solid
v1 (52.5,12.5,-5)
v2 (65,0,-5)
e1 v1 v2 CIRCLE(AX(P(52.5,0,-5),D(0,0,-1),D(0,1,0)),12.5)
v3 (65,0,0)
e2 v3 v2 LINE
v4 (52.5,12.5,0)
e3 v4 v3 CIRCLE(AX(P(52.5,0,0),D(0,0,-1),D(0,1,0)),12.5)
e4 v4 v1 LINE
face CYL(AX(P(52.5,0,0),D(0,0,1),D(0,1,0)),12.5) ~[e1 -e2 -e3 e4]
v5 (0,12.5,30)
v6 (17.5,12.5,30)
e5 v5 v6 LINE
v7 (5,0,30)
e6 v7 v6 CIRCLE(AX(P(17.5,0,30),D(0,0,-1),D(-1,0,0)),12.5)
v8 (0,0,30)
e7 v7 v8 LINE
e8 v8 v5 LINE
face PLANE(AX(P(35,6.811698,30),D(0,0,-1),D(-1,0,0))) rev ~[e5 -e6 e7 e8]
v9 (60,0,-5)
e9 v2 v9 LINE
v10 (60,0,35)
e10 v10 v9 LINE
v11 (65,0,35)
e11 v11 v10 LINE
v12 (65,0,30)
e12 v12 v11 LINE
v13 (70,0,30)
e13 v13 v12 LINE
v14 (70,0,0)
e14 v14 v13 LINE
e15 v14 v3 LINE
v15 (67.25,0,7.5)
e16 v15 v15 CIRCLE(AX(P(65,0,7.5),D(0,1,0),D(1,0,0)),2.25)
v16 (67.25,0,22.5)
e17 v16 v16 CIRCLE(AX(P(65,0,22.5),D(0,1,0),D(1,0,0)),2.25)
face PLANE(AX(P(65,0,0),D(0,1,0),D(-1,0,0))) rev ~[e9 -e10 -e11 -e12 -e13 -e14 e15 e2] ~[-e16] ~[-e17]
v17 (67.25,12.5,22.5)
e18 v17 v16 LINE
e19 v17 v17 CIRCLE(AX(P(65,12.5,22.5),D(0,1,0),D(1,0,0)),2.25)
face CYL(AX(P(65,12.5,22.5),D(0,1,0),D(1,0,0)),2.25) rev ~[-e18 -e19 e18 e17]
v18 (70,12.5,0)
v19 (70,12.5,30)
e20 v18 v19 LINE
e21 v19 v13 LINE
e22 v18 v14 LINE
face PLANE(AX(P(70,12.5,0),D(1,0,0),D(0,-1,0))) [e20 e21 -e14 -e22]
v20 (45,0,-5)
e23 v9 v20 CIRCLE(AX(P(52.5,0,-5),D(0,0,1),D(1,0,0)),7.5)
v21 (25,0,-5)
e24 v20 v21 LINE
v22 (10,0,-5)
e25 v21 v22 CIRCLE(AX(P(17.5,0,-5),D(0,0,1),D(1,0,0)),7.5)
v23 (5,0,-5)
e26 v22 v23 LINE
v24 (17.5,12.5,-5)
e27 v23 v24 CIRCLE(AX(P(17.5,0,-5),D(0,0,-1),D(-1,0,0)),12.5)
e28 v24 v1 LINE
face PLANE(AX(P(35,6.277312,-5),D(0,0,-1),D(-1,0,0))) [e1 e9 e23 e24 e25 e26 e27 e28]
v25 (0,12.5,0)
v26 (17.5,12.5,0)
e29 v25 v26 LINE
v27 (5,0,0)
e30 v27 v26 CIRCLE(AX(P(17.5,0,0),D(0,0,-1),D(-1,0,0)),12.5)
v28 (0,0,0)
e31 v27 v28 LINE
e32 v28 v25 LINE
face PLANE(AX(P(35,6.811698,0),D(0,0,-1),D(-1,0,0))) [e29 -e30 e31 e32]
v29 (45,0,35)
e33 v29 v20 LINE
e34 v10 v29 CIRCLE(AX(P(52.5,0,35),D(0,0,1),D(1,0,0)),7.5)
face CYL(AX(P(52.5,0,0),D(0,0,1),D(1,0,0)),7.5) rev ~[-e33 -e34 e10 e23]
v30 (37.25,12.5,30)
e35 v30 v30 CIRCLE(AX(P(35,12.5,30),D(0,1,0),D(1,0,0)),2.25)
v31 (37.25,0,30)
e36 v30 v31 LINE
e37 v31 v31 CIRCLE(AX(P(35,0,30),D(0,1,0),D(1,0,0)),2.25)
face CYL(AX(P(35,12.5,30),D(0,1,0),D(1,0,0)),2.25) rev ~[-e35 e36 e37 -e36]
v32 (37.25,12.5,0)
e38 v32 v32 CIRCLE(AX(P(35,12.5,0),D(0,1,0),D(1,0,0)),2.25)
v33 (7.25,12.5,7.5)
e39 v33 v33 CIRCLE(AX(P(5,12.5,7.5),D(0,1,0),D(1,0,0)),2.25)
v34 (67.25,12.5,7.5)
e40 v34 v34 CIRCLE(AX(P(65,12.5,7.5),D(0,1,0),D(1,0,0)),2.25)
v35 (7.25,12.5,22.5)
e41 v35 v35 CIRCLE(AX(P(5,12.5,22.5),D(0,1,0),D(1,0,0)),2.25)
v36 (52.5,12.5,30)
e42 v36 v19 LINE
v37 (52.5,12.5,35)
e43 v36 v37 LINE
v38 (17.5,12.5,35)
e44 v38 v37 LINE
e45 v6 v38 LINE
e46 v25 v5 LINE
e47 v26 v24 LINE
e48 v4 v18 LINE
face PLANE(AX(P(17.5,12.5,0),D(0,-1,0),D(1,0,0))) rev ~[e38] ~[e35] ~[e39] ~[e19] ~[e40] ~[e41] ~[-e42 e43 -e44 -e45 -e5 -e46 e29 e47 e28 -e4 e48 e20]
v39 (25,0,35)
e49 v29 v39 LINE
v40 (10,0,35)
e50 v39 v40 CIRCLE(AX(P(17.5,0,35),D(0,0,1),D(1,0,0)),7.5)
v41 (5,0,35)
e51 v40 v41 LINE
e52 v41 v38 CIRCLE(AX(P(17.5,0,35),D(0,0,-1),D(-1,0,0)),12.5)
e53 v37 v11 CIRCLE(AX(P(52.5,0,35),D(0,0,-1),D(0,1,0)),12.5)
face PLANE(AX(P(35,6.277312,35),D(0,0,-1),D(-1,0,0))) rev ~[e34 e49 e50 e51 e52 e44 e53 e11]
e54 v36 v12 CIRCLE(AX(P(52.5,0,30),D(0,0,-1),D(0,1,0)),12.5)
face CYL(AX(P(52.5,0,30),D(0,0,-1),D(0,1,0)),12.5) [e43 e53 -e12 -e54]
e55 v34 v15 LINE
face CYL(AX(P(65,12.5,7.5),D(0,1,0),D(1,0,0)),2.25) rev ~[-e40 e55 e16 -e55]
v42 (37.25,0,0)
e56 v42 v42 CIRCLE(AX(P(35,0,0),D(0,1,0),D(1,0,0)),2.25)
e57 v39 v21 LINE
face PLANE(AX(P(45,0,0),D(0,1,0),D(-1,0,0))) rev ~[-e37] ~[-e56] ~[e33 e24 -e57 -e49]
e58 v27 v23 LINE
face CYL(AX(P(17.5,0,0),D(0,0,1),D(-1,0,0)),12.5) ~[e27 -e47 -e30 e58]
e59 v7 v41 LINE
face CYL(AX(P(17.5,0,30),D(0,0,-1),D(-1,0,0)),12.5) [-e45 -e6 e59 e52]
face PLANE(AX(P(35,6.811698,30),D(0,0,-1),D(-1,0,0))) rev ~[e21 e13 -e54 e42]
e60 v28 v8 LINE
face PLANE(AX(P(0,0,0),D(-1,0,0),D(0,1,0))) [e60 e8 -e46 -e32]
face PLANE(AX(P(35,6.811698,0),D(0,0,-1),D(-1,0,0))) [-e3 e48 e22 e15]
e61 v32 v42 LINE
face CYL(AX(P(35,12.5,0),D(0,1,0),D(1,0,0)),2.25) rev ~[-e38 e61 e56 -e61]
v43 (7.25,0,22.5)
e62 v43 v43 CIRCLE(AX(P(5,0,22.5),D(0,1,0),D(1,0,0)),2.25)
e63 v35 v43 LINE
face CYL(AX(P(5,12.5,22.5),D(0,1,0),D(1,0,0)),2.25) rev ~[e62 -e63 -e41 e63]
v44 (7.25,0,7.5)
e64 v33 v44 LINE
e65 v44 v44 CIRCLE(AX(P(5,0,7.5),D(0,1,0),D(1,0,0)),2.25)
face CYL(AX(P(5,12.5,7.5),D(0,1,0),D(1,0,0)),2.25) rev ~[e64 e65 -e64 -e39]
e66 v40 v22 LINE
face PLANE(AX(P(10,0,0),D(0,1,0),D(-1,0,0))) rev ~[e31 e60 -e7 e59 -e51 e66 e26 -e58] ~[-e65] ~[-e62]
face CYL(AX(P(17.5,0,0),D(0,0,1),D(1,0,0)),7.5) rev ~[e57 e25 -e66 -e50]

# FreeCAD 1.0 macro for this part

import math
import FreeCAD as App
import Part
import Sketcher

V = App.Vector

doc = App.newDocument("Part")
body = doc.addObject("PartDesign::Body", "Body")

# Sketch on XY plane
sketch1 = body.newObject("Sketcher::SketchObject", "Sketch")
sketch1.AttachmentSupport = (doc.getObject("XY_Plane"), [""])
sketch1.MapMode = "FlatFace"
sketch1.addGeometry([
    Part.LineSegment(V(0, 12, 0), V(0, 0, 0)),  # 0
    Part.LineSegment(V(0, 0, 0), V(10, 0, 0)),  # 1
    Part.ArcOfCircle(Part.Circle(V(18, 0, 0), V(0, 0, 1), 8), math.radians(0), math.radians(180)),  # 2
    Part.LineSegment(V(25, 0, 0), V(45, 0, 0)),  # 3
    Part.ArcOfCircle(Part.Circle(V(52, 0, 0), V(0, 0, 1), 8), math.radians(0), math.radians(180)),  # 4
    Part.LineSegment(V(60, 0, 0), V(70, 0, 0)),  # 5
    Part.LineSegment(V(70, 0, 0), V(70, 12, 0)),  # 6
    Part.LineSegment(V(70, 12, 0), V(0, 12, 0)),  # 7
], False)
sketch1.addConstraint([
    Sketcher.Constraint("Coincident", 0, 2, 1, 1),
    Sketcher.Constraint("Coincident", 1, 2, 2, 2),
    Sketcher.Constraint("Coincident", 2, 1, 3, 1),
    Sketcher.Constraint("Coincident", 3, 2, 4, 2),
    Sketcher.Constraint("Coincident", 4, 1, 5, 1),
    Sketcher.Constraint("Coincident", 5, 2, 6, 1),
    Sketcher.Constraint("Coincident", 6, 2, 7, 1),
    Sketcher.Constraint("Coincident", 7, 2, 0, 1),
    Sketcher.Constraint("Vertical", 0),
    Sketcher.Constraint("Horizontal", 1),
    Sketcher.Constraint("Horizontal", 3),
    Sketcher.Constraint("Horizontal", 5),
    Sketcher.Constraint("Vertical", 6),
    Sketcher.Constraint("Horizontal", 7),
    Sketcher.Constraint("Coincident", 0, 2, -1, 1),
    Sketcher.Constraint("Equal", 2, 4),
    Sketcher.Constraint("PointOnObject", 2, 3, -1),
    Sketcher.Constraint("PointOnObject", 4, 3, -1),
    Sketcher.Constraint("PointOnObject", 2, 1, -1),
    Sketcher.Constraint("PointOnObject", 4, 1, -1),
    Sketcher.Constraint("Equal", 1, 5),
    Sketcher.Constraint("Radius", 2, 7.5),
    Sketcher.Constraint("DistanceX", 1, 1, 1, 2, 10.0),
    Sketcher.Constraint("DistanceX", 3, 1, 3, 2, 20.0),
    Sketcher.Constraint("DistanceY", 0, 2, 0, 1, 12.5),
])
pad1 = body.newObject("PartDesign::Pad", "Pad")
pad1.Profile = sketch1
pad1.Length = 30

# Sketch on XY plane
sketch2 = body.newObject("Sketcher::SketchObject", "Sketch001")
sketch2.AttachmentSupport = (doc.getObject("XY_Plane"), [""])
sketch2.MapMode = "FlatFace"
sketch2.AttachmentOffset = App.Placement(V(0, 0, 30), App.Rotation())
sketch2.addGeometry([
    Part.LineSegment(V(52, 12, 0), V(18, 12, 0)),  # 0
    Part.ArcOfCircle(Part.Circle(V(17, 0, 0), V(0, 0, 1), 12), math.radians(90), math.radians(180)),  # 1
    Part.LineSegment(V(5, 0, 0), V(10, 0, 0)),  # 2
    Part.ArcOfCircle(Part.Circle(V(18, 0, 0), V(0, 0, 1), 8), math.radians(0), math.radians(180)),  # 3
    Part.LineSegment(V(25, 0, 0), V(45, 0, 0)),  # 4
    Part.ArcOfCircle(Part.Circle(V(52, 0, 0), V(0, 0, 1), 8), math.radians(0), math.radians(180)),  # 5
    Part.LineSegment(V(60, 0, 0), V(65, 0, 0)),  # 6
    Part.ArcOfCircle(Part.Circle(V(53, 0, 0), V(0, 0, 1), 12), math.radians(0), math.radians(90)),  # 7
], False)
sketch2.addConstraint([
    Sketcher.Constraint("Tangent", 0, 2, 1, 1),
    Sketcher.Constraint("Coincident", 1, 2, 2, 1),
    Sketcher.Constraint("Coincident", 2, 2, 3, 2),
    Sketcher.Constraint("Coincident", 3, 1, 4, 1),
    Sketcher.Constraint("Coincident", 4, 2, 5, 2),
    Sketcher.Constraint("Coincident", 5, 1, 6, 1),
    Sketcher.Constraint("Coincident", 6, 2, 7, 1),
    Sketcher.Constraint("Tangent", 7, 2, 0, 1),
    Sketcher.Constraint("Horizontal", 0),
    Sketcher.Constraint("Horizontal", 2),
    Sketcher.Constraint("Horizontal", 4),
    Sketcher.Constraint("Horizontal", 6),
    Sketcher.Constraint("Coincident", 3, 3, 1, 3),
    Sketcher.Constraint("Coincident", 7, 3, 5, 3),
    Sketcher.Constraint("Equal", 3, 5),
    Sketcher.Constraint("Equal", 1, 7),
    Sketcher.Constraint("PointOnObject", 1, 3, -1),
    Sketcher.Constraint("PointOnObject", 1, 2, -1),
    Sketcher.Constraint("PointOnObject", 3, 1, -1),
    Sketcher.Constraint("PointOnObject", 5, 1, -1),
    Sketcher.Constraint("Radius", 1, 12.5),
    Sketcher.Constraint("Radius", 3, 7.5),
    Sketcher.Constraint("DistanceX", 0, 2, 0, 1, 35.0),
    Sketcher.Constraint("DistanceX", -1, 1, 1, 2, 5.0),
])
pad2 = body.newObject("PartDesign::Pad", "Pad001")
pad2.Profile = sketch2
pad2.Length = 5

# Sketch on XY plane
sketch3 = body.newObject("Sketcher::SketchObject", "Sketch002")
sketch3.AttachmentSupport = (doc.getObject("XY_Plane"), [""])
sketch3.MapMode = "FlatFace"
sketch3.addGeometry([
    Part.LineSegment(V(65, 0, 0), V(60, 0, 0)),  # 0
    Part.ArcOfCircle(Part.Circle(V(52, 0, 0), V(0, 0, 1), 8), math.radians(0), math.radians(180)),  # 1
    Part.LineSegment(V(45, 0, 0), V(25, 0, 0)),  # 2
    Part.ArcOfCircle(Part.Circle(V(18, 0, 0), V(0, 0, 1), 8), math.radians(0), math.radians(180)),  # 3
    Part.LineSegment(V(10, 0, 0), V(5, 0, 0)),  # 4
    Part.ArcOfCircle(Part.Circle(V(17, 0, 0), V(0, 0, 1), 12), math.radians(90), math.radians(180)),  # 5
    Part.LineSegment(V(18, 12, 0), V(52, 12, 0)),  # 6
    Part.ArcOfCircle(Part.Circle(V(53, 0, 0), V(0, 0, 1), 12), math.radians(0), math.radians(90)),  # 7
], False)
sketch3.addConstraint([
    Sketcher.Constraint("Coincident", 0, 2, 1, 1),
    Sketcher.Constraint("Coincident", 1, 2, 2, 1),
    Sketcher.Constraint("Coincident", 2, 2, 3, 1),
    Sketcher.Constraint("Coincident", 3, 2, 4, 1),
    Sketcher.Constraint("Coincident", 4, 2, 5, 2),
    Sketcher.Constraint("Tangent", 5, 1, 6, 1),
    Sketcher.Constraint("Tangent", 6, 2, 7, 2),
    Sketcher.Constraint("Coincident", 7, 1, 0, 1),
    Sketcher.Constraint("Horizontal", 0),
    Sketcher.Constraint("Horizontal", 2),
    Sketcher.Constraint("Horizontal", 4),
    Sketcher.Constraint("Horizontal", 6),
    Sketcher.Constraint("Coincident", 5, 3, 3, 3),
    Sketcher.Constraint("Coincident", 7, 3, 1, 3),
    Sketcher.Constraint("Equal", 1, 3),
    Sketcher.Constraint("Equal", 5, 7),
    Sketcher.Constraint("PointOnObject", 1, 3, -1),
    Sketcher.Constraint("PointOnObject", 0, 2, -1),
    Sketcher.Constraint("PointOnObject", 1, 2, -1),
    Sketcher.Constraint("PointOnObject", 3, 2, -1),
    Sketcher.Constraint("Radius", 1, 7.5),
    Sketcher.Constraint("Radius", 5, 12.5),
    Sketcher.Constraint("DistanceX", 2, 2, 2, 1, 20.0),
    Sketcher.Constraint("DistanceX", -1, 1, 0, 2, 60.0),
])
pad3 = body.newObject("PartDesign::Pad", "Pad002")
pad3.Profile = sketch3
pad3.Length = 5
pad3.Reversed = True

# Sketch on XZ plane
sketch4 = body.newObject("Sketcher::SketchObject", "Sketch003")
sketch4.AttachmentSupport = (doc.getObject("XZ_Plane"), [""])
sketch4.MapMode = "FlatFace"
sketch4.AttachmentOffset = App.Placement(V(0, 0, -12.5), App.Rotation())
sketch4.addGeometry([
    Part.Circle(V(35, 0, 0), V(0, 0, 1), 2.2),  # 0
    Part.Circle(V(35, 30, 0), V(0, 0, 1), 2.2),  # 1
    Part.Circle(V(65, 7.5, 0), V(0, 0, 1), 2.2),  # 2
    Part.Circle(V(65, 22.5, 0), V(0, 0, 1), 2.2),  # 3
    Part.Circle(V(5, 22.5, 0), V(0, 0, 1), 2.2),  # 4
    Part.Circle(V(5, 7.5, 0), V(0, 0, 1), 2.2),  # 5
], False)
sketch4.addConstraint([
    Sketcher.Constraint("Equal", 0, 1),
    Sketcher.Constraint("Equal", 1, 2),
    Sketcher.Constraint("Equal", 2, 3),
    Sketcher.Constraint("Equal", 3, 4),
    Sketcher.Constraint("Equal", 4, 5),
    Sketcher.Constraint("PointOnObject", 0, 3, -1),
    Sketcher.Constraint("Horizontal", 3, 3, 4, 3),
    Sketcher.Constraint("Horizontal", 2, 3, 5, 3),
    Sketcher.Constraint("Vertical", 0, 3, 1, 3),
    Sketcher.Constraint("Vertical", 2, 3, 3, 3),
    Sketcher.Constraint("Vertical", 4, 3, 5, 3),
    Sketcher.Constraint("Diameter", 0, 4.5),
    Sketcher.Constraint("DistanceX", -1, 1, 0, 3, 35.0),
    Sketcher.Constraint("DistanceY", -1, 1, 1, 3, 30.0),
    Sketcher.Constraint("DistanceX", -1, 1, 2, 3, 65.0),
    Sketcher.Constraint("DistanceX", -1, 1, 4, 3, 5.0),
    Sketcher.Constraint("DistanceY", 2, 3, 3, 3, 15.0),
    Sketcher.Constraint("DistanceY", -1, 1, 2, 3, 7.5),
])
pocket1 = body.newObject("PartDesign::Pocket", "Pocket")
pocket1.Profile = sketch4
pocket1.Length = 12.5
pocket1.Reversed = True

doc.recompute()
